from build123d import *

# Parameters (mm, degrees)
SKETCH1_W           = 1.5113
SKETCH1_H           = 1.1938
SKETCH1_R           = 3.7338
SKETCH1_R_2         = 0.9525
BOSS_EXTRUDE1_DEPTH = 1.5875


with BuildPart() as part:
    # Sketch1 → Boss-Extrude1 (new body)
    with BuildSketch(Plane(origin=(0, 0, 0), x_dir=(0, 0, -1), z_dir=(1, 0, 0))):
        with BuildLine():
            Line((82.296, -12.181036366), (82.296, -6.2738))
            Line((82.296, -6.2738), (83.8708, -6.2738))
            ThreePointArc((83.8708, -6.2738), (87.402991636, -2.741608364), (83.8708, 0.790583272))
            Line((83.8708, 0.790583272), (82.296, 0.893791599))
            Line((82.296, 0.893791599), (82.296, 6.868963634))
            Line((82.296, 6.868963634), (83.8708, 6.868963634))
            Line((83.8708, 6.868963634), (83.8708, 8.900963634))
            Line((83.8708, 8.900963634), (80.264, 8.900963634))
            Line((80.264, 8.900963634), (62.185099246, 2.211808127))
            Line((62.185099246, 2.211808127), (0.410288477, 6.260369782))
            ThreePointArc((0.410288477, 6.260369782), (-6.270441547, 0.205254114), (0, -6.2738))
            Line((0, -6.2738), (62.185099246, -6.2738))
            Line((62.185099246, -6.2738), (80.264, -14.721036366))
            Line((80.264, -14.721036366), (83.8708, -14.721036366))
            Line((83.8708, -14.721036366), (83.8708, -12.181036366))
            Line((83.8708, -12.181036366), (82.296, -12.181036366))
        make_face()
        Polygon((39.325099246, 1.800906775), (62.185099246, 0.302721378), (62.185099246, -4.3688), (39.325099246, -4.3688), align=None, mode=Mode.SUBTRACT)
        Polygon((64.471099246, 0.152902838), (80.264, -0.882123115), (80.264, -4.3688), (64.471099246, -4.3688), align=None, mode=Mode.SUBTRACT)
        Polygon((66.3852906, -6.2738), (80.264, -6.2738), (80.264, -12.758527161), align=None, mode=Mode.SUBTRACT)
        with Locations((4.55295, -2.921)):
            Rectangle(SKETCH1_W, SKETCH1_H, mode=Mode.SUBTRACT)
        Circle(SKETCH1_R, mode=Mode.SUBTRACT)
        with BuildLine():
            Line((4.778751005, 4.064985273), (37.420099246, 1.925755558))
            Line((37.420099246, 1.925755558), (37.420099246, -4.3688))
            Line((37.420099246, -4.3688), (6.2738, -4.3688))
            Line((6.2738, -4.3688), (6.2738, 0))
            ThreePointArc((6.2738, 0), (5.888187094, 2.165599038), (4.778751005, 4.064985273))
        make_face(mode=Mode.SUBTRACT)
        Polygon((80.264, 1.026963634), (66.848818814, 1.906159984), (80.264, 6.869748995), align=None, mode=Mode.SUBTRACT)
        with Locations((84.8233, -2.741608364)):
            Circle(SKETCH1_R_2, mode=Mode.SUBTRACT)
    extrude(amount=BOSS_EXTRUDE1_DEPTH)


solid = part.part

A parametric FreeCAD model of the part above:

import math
import FreeCAD as App
import Part
import Sketcher
from FreeCAD import Vector
Q = App.Units.Quantity


def add_polygon(sketch, points):
    """Adds a closed chain of lines whose ends are joined by coincident constraints."""
    first, n = sketch.GeometryCount, len(points)
    for a, b in zip(points, points[1:] + points[:1]):
        sketch.addGeometry(Part.LineSegment(App.Vector(*a, 0), App.Vector(*b, 0)), False)
    for i in range(n):
        sketch.addConstraint(Sketcher.Constraint("Coincident", first + i, 2, first + (i + 1) % n, 1))

doc = App.newDocument("Part")
params = doc.addObject("Spreadsheet::Sheet", "Params")
for row, (alias, value) in enumerate([
    ("sketch1_diameter", "0.294 in"),
    ("sketch1_diameter2", "0.075 in"),
    ("sketch1_width", "0.1 in"),
    ("sketch1_height", "0.9 in"),
    ("sketch1_radius", "0.247 in"),
    ("pad1_length", "0.0625 in"),
], start=1):
    params.set(f"A{row}", alias)
    params.set(f"B{row}", "=" + value)
    params.setAlias(f"B{row}", alias)

body = doc.addObject("PartDesign::Body", "Body")

# Sketch on YZ plane
sketch1 = body.newObject("Sketcher::SketchObject", "Sketch")
sketch1.AttachmentSupport = (doc.getObject("YZ_Plane"), [""])
sketch1.MapMode = "FlatFace"
sketch1.addGeometry(Part.LineSegment(Vector(-12.2, -82.3, 0), Vector(-6.3, -82.3, 0)), False)  # 0
sketch1.addGeometry(Part.LineSegment(Vector(-6.3, -82.3, 0), Vector(-6.3, -83.9, 0)), False)  # 1
sketch1.addGeometry(Part.ArcOfCircle(Part.Circle(Vector(-2.7, -83.9, 0), Vector(0, 0, 1), 3.5), math.radians(180), math.radians(360)), False)  # 2
sketch1.addGeometry(Part.LineSegment(Vector(0.8, -83.9, 0), Vector(0.9, -82.3, 0)), False)  # 3
sketch1.addGeometry(Part.LineSegment(Vector(0.9, -82.3, 0), Vector(6.9, -82.3, 0)), False)  # 4
sketch1.addGeometry(Part.LineSegment(Vector(6.9, -82.3, 0), Vector(6.9, -83.9, 0)), False)  # 5
sketch1.addGeometry(Part.LineSegment(Vector(6.9, -83.9, 0), Vector(8.9, -83.9, 0)), False)  # 6
sketch1.addGeometry(Part.LineSegment(Vector(8.9, -83.9, 0), Vector(8.9, -80.3, 0)), False)  # 7
sketch1.addGeometry(Part.LineSegment(Vector(8.9, -80.3, 0), Vector(2.2, -62.2, 0)), False)  # 8
sketch1.addGeometry(Part.LineSegment(Vector(2.2, -62.2, 0), Vector(6.3, -0.4, 0)), False)  # 9
sketch1.addGeometry(Part.ArcOfCircle(Part.Circle(Vector(0, 0, 0), Vector(0, 0, 1), 6.3), math.radians(-4), math.radians(180)), False)  # 10
sketch1.addGeometry(Part.LineSegment(Vector(-6.3, 0, 0), Vector(-6.3, -62.2, 0)), False)  # 11
sketch1.addGeometry(Part.LineSegment(Vector(-6.3, -62.2, 0), Vector(-14.7, -80.3, 0)), False)  # 12
sketch1.addGeometry(Part.LineSegment(Vector(-14.7, -80.3, 0), Vector(-14.7, -83.9, 0)), False)  # 13
sketch1.addGeometry(Part.LineSegment(Vector(-14.7, -83.9, 0), Vector(-12.2, -83.9, 0)), False)  # 14
sketch1.addGeometry(Part.LineSegment(Vector(-12.2, -83.9, 0), Vector(-12.2, -82.3, 0)), False)  # 15
add_polygon(sketch1, [(-12.8, -80.3), (-6.3, -66.4), (-6.3, -80.3)])  # lines 16-18
add_polygon(sketch1, [(-3.5, -5.3), (-3.5, -3.8), (-2.3, -3.8), (-2.3, -5.3)])  # lines 19-22
sketch1.addGeometry(Part.Circle(Vector(0, 0, 0), Vector(0, 0, 1), 3.7), False)  # 23
sketch1.addGeometry(Part.ArcOfCircle(Part.Circle(Vector(0, 0, 0), Vector(0, 0, 1), 6.3), math.radians(-90), math.radians(-50)), False)  # 24
sketch1.addGeometry(Part.LineSegment(Vector(4.1, -4.8, 0), Vector(1.9, -37.4, 0)), False)  # 25
sketch1.addGeometry(Part.LineSegment(Vector(1.9, -37.4, 0), Vector(-4.4, -37.4, 0)), False)  # 26
sketch1.addGeometry(Part.LineSegment(Vector(-4.4, -37.4, 0), Vector(-4.4, -6.3, 0)), False)  # 27
sketch1.addGeometry(Part.LineSegment(Vector(-4.4, -6.3, 0), Vector(0, -6.3, 0)), False)  # 28
add_polygon(sketch1, [(-4.4, -39.3), (1.8, -39.3), (0.3, -62.2), (-4.4, -62.2)])  # lines 29-32
add_polygon(sketch1, [(-4.4, -64.5), (0.2, -64.5), (-0.9, -80.3), (-4.4, -80.3)])  # lines 33-36
sketch1.addGeometry(Part.Circle(Vector(-2.7, -84.8, 0), Vector(0, 0, 1), 1), False)  # 37
add_polygon(sketch1, [(6.9, -80.3), (1, -80.3), (1.9, -66.8)])  # lines 38-40
sketch1.addConstraint(Sketcher.Constraint("Coincident", 0, 2, 1, 1))
sketch1.addConstraint(Sketcher.Constraint("Tangent", 1, 2, 2, 1))
sketch1.addConstraint(Sketcher.Constraint("Coincident", 2, 2, 3, 1))
sketch1.addConstraint(Sketcher.Constraint("Coincident", 3, 2, 4, 1))
sketch1.addConstraint(Sketcher.Constraint("Coincident", 4, 2, 5, 1))
sketch1.addConstraint(Sketcher.Constraint("Coincident", 5, 2, 6, 1))
sketch1.addConstraint(Sketcher.Constraint("Coincident", 6, 2, 7, 1))
sketch1.addConstraint(Sketcher.Constraint("Coincident", 7, 2, 8, 1))
sketch1.addConstraint(Sketcher.Constraint("Coincident", 8, 2, 9, 1))
sketch1.addConstraint(Sketcher.Constraint("Tangent", 9, 2, 10, 1))
sketch1.addConstraint(Sketcher.Constraint("Tangent", 10, 2, 11, 1))
sketch1.addConstraint(Sketcher.Constraint("Coincident", 11, 2, 12, 1))
sketch1.addConstraint(Sketcher.Constraint("Coincident", 12, 2, 13, 1))
sketch1.addConstraint(Sketcher.Constraint("Coincident", 13, 2, 14, 1))
sketch1.addConstraint(Sketcher.Constraint("Coincident", 14, 2, 15, 1))
sketch1.addConstraint(Sketcher.Constraint("Coincident", 15, 2, 0, 1))
sketch1.addConstraint(Sketcher.Constraint("Coincident", 24, 2, 25, 1))
sketch1.addConstraint(Sketcher.Constraint("Coincident", 25, 2, 26, 1))
sketch1.addConstraint(Sketcher.Constraint("Coincident", 26, 2, 27, 1))
sketch1.addConstraint(Sketcher.Constraint("Coincident", 27, 2, 28, 1))
sketch1.addConstraint(Sketcher.Constraint("Tangent", 28, 2, 24, 1))
sketch1.addConstraint(Sketcher.Constraint("Horizontal", 0))
sketch1.addConstraint(Sketcher.Constraint("Vertical", 1))
sketch1.addConstraint(Sketcher.Constraint("Horizontal", 4))
sketch1.addConstraint(Sketcher.Constraint("Vertical", 5))
sketch1.addConstraint(Sketcher.Constraint("Horizontal", 6))
sketch1.addConstraint(Sketcher.Constraint("Vertical", 7))
sketch1.addConstraint(Sketcher.Constraint("Vertical", 11))
sketch1.addConstraint(Sketcher.Constraint("Vertical", 13))
sketch1.addConstraint(Sketcher.Constraint("Horizontal", 14))
sketch1.addConstraint(Sketcher.Constraint("Vertical", 15))
sketch1.addConstraint(Sketcher.Constraint("Vertical", 17))
sketch1.addConstraint(Sketcher.Constraint("Horizontal", 18))
sketch1.addConstraint(Sketcher.Constraint("Vertical", 19))
sketch1.addConstraint(Sketcher.Constraint("Horizontal", 20))
sketch1.addConstraint(Sketcher.Constraint("Vertical", 21))
sketch1.addConstraint(Sketcher.Constraint("Horizontal", 22))
sketch1.addConstraint(Sketcher.Constraint("Horizontal", 26))
sketch1.addConstraint(Sketcher.Constraint("Vertical", 27))
sketch1.addConstraint(Sketcher.Constraint("Horizontal", 28))
sketch1.addConstraint(Sketcher.Constraint("Horizontal", 29))
sketch1.addConstraint(Sketcher.Constraint("Horizontal", 31))
sketch1.addConstraint(Sketcher.Constraint("Vertical", 32))
sketch1.addConstraint(Sketcher.Constraint("Horizontal", 33))
sketch1.addConstraint(Sketcher.Constraint("Horizontal", 35))
sketch1.addConstraint(Sketcher.Constraint("Vertical", 36))
sketch1.addConstraint(Sketcher.Constraint("Horizontal", 38))
sketch1.addConstraint(Sketcher.Constraint("Coincident", 10, 3, -1, 1))
sketch1.addConstraint(Sketcher.Constraint("Coincident", 23, 3, -1, 1))
sketch1.addConstraint(Sketcher.Constraint("Coincident", 24, 3, -1, 1))
sketch1.addConstraint(Sketcher.Constraint("Equal", 10, 24))
sketch1.addConstraint(Sketcher.Constraint("Parallel", 3, 9))
sketch1.addConstraint(Sketcher.Constraint("Parallel", 12, 16))
sketch1.addConstraint(Sketcher.Constraint("Parallel", 9, 25))
sketch1.addConstraint(Sketcher.Constraint("Parallel", 25, 30))
sketch1.addConstraint(Sketcher.Constraint("Parallel", 30, 34))
sketch1.addConstraint(Sketcher.Constraint("Parallel", 34, 39))
sketch1.addConstraint(Sketcher.Constraint("Parallel", 8, 40))
sketch1.addConstraint(Sketcher.Constraint("Horizontal", 1, 2, 2, 2))
sketch1.addConstraint(Sketcher.Constraint("Horizontal", 0, 2, 3, 2))
sketch1.addConstraint(Sketcher.Constraint("Horizontal", 2, 2, 5, 2))
sketch1.addConstraint(Sketcher.Constraint("Horizontal", 8, 2, 11, 2))
sketch1.addConstraint(Sketcher.Constraint("Horizontal", 7, 2, 12, 2))
sketch1.addConstraint(Sketcher.Constraint("Horizontal", 6, 2, 13, 2))
sketch1.addConstraint(Sketcher.Constraint("Horizontal", 12, 2, 17, 2))
sketch1.addConstraint(Sketcher.Constraint("Horizontal", 11, 2, 30, 2))
sketch1.addConstraint(Sketcher.Constraint("Horizontal", 18, 2, 34, 2))
sketch1.addConstraint(Sketcher.Constraint("Horizontal", 35, 2, 38, 2))
sketch1.addConstraint(Sketcher.Constraint("Vertical", 2, 3, 37, 3))
sketch1.addConstraint(Sketcher.Constraint("Vertical", 1, 2, 10, 2))
sketch1.addConstraint(Sketcher.Constraint("Vertical", 11, 2, 16, 2))
sketch1.addConstraint(Sketcher.Constraint("Vertical", 27, 2, 31, 2))
sketch1.addConstraint(Sketcher.Constraint("Vertical", 32, 2, 35, 2))
sketch1.addConstraint(Sketcher.Constraint("Diameter", 23, Q("0.294 in")))
sketch1.addConstraint(Sketcher.Constraint("Diameter", 37, Q("0.075 in")))
sketch1.addConstraint(Sketcher.Constraint("DistanceX", 14, 1, 14, 2, Q("0.1 in")))
sketch1.addConstraint(Sketcher.Constraint("DistanceY", 32, 1, 32, 2, Q("0.9 in")))
sketch1.addConstraint(Sketcher.Constraint("Radius", 10, Q("0.247 in")))
sketch1.addConstraint(Sketcher.Constraint("DistanceX", 6, 1, 6, 2, Q("0.08 in")))
sketch1.addConstraint(Sketcher.Constraint("DistanceX", 20, 1, 20, 2, Q("0.047 in")))
sketch1.addConstraint(Sketcher.Constraint("DistanceX", 28, 1, 28, 2, Q("0.172 in")))
sketch1.addConstraint(Sketcher.Constraint("DistanceY", 1, 2, 1, 1, Q("0.062 in")))
sketch1.addConstraint(Sketcher.Constraint("DistanceY", 7, 1, 7, 2, Q("0.142 in")))
sketch1.addConstraint(Sketcher.Constraint("DistanceY", 0, 2, -1, 1, Q("3.24 in")))
sketch1.addConstraint(Sketcher.Constraint("DistanceY", 33, 2, 30, 2, Q("0.09 in")))
sketch1.addConstraint(Sketcher.Constraint("DistanceY", 19, 1, 19, 2, Q("0.0595 in")))
sketch1.addConstraint(Sketcher.Constraint("DistanceY", 21, 2, -1, 1, Q("0.209 in")))
sketch1.addConstraint(Sketcher.Constraint("Radius", 2, Q("3.532192 mm")))
sketch1.addConstraint(Sketcher.Constraint("DistanceY", 8, 2, 25, 2, Q("0.975 in")))
sketch1.addConstraint(Sketcher.Constraint("DistanceY", 11, 2, 11, 1, Q("62.185099 mm")))
sketch1.addConstraint(Sketcher.Constraint("DistanceY", 37, 3, -1, 1, Q("3.3395 in")))
sketch1.addConstraint(Sketcher.Constraint("DistanceX", 19, 2, -1, 1, Q("0.1385 in")))
sketch1.addConstraint(Sketcher.Constraint("DistanceX", 31, 2, 31, 1, Q("4.671521 mm")))
sketch1.addConstraint(Sketcher.Constraint("DistanceY", 17, 2, 17, 1, Q("13.878709 mm")))
sketch1.addConstraint(Sketcher.Constraint("DistanceX", 2, 3, 3, 2, Q("3.6354 mm")))
sketch1.addConstraint(Sketcher.Constraint("Distance", 12, Q("19.955011 mm")))
sketch1.addConstraint(Sketcher.Constraint("Distance", 39, Q("13.44396 mm")))
sketch1.addConstraint(Sketcher.Constraint("DistanceX", 4, 1, 4, 2, Q("5.975172 mm")))
sketch1.addConstraint(Sketcher.Constraint("DistanceX", 26, 2, 26, 1, Q("6.294556 mm")))
sketch1.addConstraint(Sketcher.Constraint("DistanceX", 33, 1, 33, 2, Q("4.521703 mm")))
sketch1.addConstraint(Sketcher.Constraint("DistanceX", -1, 1, 39, 2, Q("1.90616 mm")))
sketch1.setExpression("Constraints[91]", "Params.sketch1_diameter")
sketch1.setExpression("Constraints[92]", "Params.sketch1_diameter2")
sketch1.setExpression("Constraints[93]", "Params.sketch1_width")
sketch1.setExpression("Constraints[94]", "Params.sketch1_height")
sketch1.setExpression("Constraints[95]", "Params.sketch1_radius")
pad1 = body.newObject("PartDesign::Pad", "Pad")
pad1.Profile = sketch1
pad1.setExpression("Length", "Params.pad1_length")

doc.recompute()
